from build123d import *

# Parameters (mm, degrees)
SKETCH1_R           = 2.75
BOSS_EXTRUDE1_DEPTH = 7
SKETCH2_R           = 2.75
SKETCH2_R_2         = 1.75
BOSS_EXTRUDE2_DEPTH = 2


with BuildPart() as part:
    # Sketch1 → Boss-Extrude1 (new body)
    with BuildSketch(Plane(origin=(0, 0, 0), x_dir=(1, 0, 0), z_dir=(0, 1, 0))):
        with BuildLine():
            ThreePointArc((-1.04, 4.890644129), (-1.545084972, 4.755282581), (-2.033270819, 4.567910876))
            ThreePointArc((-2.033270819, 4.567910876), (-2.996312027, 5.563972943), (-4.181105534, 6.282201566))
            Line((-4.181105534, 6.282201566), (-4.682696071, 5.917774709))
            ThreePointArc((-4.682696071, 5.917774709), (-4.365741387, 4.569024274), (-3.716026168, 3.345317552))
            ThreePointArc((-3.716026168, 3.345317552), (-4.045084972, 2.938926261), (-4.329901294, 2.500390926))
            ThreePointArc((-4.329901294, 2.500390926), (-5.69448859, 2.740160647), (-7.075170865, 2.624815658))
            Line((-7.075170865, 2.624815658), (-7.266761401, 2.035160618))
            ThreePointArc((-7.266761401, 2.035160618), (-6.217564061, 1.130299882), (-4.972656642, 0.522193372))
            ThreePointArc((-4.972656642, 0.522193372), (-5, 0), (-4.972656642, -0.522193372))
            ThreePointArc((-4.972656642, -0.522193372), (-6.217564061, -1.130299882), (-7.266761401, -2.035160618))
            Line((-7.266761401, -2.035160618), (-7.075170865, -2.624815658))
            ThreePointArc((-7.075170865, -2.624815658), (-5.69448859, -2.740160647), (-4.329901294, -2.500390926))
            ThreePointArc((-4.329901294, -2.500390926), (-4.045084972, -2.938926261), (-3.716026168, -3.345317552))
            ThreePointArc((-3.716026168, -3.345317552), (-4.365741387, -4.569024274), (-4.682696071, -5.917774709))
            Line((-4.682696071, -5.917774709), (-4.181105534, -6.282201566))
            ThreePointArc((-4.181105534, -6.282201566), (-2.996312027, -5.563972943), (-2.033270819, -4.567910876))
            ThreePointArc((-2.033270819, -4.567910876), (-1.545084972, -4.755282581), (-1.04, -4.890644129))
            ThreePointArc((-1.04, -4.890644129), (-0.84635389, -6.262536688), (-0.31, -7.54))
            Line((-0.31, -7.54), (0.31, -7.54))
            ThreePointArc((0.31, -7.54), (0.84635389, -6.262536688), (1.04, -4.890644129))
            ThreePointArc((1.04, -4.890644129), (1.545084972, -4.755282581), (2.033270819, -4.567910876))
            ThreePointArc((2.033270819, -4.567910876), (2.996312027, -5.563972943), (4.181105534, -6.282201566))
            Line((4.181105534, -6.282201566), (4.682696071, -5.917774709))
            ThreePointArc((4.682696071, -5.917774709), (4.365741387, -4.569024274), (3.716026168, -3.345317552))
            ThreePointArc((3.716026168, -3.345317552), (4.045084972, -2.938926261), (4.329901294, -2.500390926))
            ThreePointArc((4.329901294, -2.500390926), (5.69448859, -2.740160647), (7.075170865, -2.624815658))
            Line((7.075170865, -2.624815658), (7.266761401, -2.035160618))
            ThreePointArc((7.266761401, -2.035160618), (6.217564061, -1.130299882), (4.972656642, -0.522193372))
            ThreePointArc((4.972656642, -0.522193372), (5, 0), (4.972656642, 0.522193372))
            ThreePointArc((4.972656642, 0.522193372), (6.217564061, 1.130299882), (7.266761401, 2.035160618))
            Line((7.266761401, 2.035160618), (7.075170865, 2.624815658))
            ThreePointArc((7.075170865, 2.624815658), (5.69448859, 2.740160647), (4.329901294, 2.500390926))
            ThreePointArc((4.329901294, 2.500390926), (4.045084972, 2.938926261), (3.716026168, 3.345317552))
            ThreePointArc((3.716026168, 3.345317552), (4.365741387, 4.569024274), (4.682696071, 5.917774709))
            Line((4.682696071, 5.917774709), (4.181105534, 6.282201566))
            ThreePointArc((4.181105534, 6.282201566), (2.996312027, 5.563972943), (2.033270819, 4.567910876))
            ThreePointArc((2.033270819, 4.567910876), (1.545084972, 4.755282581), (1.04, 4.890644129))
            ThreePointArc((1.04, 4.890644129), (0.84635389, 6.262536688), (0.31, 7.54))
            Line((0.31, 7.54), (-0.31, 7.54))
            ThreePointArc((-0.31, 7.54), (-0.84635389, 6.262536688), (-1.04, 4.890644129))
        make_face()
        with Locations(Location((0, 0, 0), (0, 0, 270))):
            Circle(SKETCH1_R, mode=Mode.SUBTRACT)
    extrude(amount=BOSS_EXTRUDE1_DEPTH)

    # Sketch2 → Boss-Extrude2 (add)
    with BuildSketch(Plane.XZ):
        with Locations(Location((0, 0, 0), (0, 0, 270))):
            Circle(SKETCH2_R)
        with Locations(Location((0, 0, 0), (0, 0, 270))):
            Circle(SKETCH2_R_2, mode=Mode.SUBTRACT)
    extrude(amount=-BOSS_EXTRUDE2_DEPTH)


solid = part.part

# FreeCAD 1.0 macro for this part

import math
import FreeCAD as App
import Part
import Sketcher

V = App.Vector
Q = App.Units.Quantity

doc = App.newDocument("Part")
body = doc.addObject("PartDesign::Body", "Body")

sketch1 = doc.addObject("Sketcher::SketchObject", "Sketch")
body.addObject(sketch1)
sketch1.AttachmentSupport = (doc.XZ_Plane, [""])
sketch1.MapMode = "FlatFace"
sketch1.addGeometry(Part.ArcOfCircle(Part.Circle(V(0, 0, 0), V(0, 0, 1), 5), math.radians(-113.99), math.radians(-102.01)), False)
sketch1.addGeometry(Part.ArcOfCircle(Part.Circle(V(-6.4, -1.3, 0), V(0, 0, 1), 5.4), math.radians(-66), math.radians(-37)), False)
sketch1.addGeometry(Part.LineSegment(V(-4.2, -6.3, 0), V(-4.7, -5.9, 0)), False)
sketch1.addGeometry(Part.ArcOfCircle(Part.Circle(V(0.7, -6.5, 0), V(0, 0, 1), 5.4), math.radians(145), math.radians(174)), False)
sketch1.addGeometry(Part.ArcOfCircle(Part.Circle(V(0, 0, 0), V(0, 0, 1), 5), math.radians(-149.99), math.radians(-138.01)), False)
sketch1.addGeometry(Part.ArcOfCircle(Part.Circle(V(-5.9, 2.7, 0), V(0, 0, 1), 5.4), math.radians(-102), math.radians(-73)), False)
sketch1.addGeometry(Part.LineSegment(V(-7.1, -2.6, 0), V(-7.3, -2, 0)), False)
sketch1.addGeometry(Part.ArcOfCircle(Part.Circle(V(-3.2, -5.6, 0), V(0, 0, 1), 5.4), math.radians(109), math.radians(138)), False)
sketch1.addGeometry(Part.ArcOfCircle(Part.Circle(V(0, 0, 0), V(0, 0, 1), 5), math.radians(174.01), math.radians(185.99)), False)
sketch1.addGeometry(Part.ArcOfCircle(Part.Circle(V(-3.2, 5.6, 0), V(0, 0, 1), 5.4), math.radians(-138), math.radians(-109)), False)
sketch1.addGeometry(Part.LineSegment(V(-7.3, 2, 0), V(-7.1, 2.6, 0)), False)
sketch1.addGeometry(Part.ArcOfCircle(Part.Circle(V(-5.9, -2.7, 0), V(0, 0, 1), 5.4), math.radians(73), math.radians(102)), False)
sketch1.addGeometry(Part.ArcOfCircle(Part.Circle(V(0, 0, 0), V(0, 0, 1), 5), math.radians(138.01), math.radians(149.99)), False)
sketch1.addGeometry(Part.ArcOfCircle(Part.Circle(V(0.7, 6.5, 0), V(0, 0, 1), 5.4), math.radians(-174), math.radians(-145)), False)
sketch1.addGeometry(Part.LineSegment(V(-4.7, 5.9, 0), V(-4.2, 6.3, 0)), False)
sketch1.addGeometry(Part.ArcOfCircle(Part.Circle(V(-6.4, 1.3, 0), V(0, 0, 1), 5.4), math.radians(37), math.radians(66)), False)
sketch1.addGeometry(Part.ArcOfCircle(Part.Circle(V(0, 0, 0), V(0, 0, 1), 5), math.radians(102.01), math.radians(113.99)), False)
sketch1.addGeometry(Part.ArcOfCircle(Part.Circle(V(4.4, 4.8, 0), V(0, 0, 1), 5.4), math.radians(150), math.radians(179)), False)
sketch1.addGeometry(Part.LineSegment(V(-0.3, 7.5, 0), V(0.3, 7.5, 0)), False)
sketch1.addGeometry(Part.ArcOfCircle(Part.Circle(V(-4.4, 4.8, 0), V(0, 0, 1), 5.4), math.radians(1), math.radians(30)), False)
sketch1.addGeometry(Part.ArcOfCircle(Part.Circle(V(0, 0, 0), V(0, 0, 1), 5), math.radians(66.01), math.radians(77.99)), False)
sketch1.addGeometry(Part.ArcOfCircle(Part.Circle(V(6.4, 1.3, 0), V(0, 0, 1), 5.4), math.radians(114), math.radians(143)), False)
sketch1.addGeometry(Part.LineSegment(V(4.2, 6.3, 0), V(4.7, 5.9, 0)), False)
sketch1.addGeometry(Part.ArcOfCircle(Part.Circle(V(-0.7, 6.5, 0), V(0, 0, 1), 5.4), math.radians(-35), math.radians(-6)), False)
sketch1.addGeometry(Part.ArcOfCircle(Part.Circle(V(0, 0, 0), V(0, 0, 1), 5), math.radians(30.01), math.radians(41.99)), False)
sketch1.addGeometry(Part.ArcOfCircle(Part.Circle(V(5.9, -2.7, 0), V(0, 0, 1), 5.4), math.radians(78), math.radians(107)), False)
sketch1.addGeometry(Part.LineSegment(V(7.1, 2.6, 0), V(7.3, 2, 0)), False)
sketch1.addGeometry(Part.ArcOfCircle(Part.Circle(V(3.2, 5.6, 0), V(0, 0, 1), 5.4), math.radians(-71), math.radians(-42)), False)
sketch1.addGeometry(Part.ArcOfCircle(Part.Circle(V(0, 0, 0), V(0, 0, 1), 5), math.radians(-5.99), math.radians(5.99)), False)
sketch1.addGeometry(Part.ArcOfCircle(Part.Circle(V(3.2, -5.6, 0), V(0, 0, 1), 5.4), math.radians(42), math.radians(71)), False)
sketch1.addGeometry(Part.LineSegment(V(7.3, -2, 0), V(7.1, -2.6, 0)), False)
sketch1.addGeometry(Part.ArcOfCircle(Part.Circle(V(5.9, 2.7, 0), V(0, 0, 1), 5.4), math.radians(-107), math.radians(-78)), False)
sketch1.addGeometry(Part.ArcOfCircle(Part.Circle(V(0, 0, 0), V(0, 0, 1), 5), math.radians(-41.99), math.radians(-30.01)), False)
sketch1.addGeometry(Part.ArcOfCircle(Part.Circle(V(-0.7, -6.5, 0), V(0, 0, 1), 5.4), math.radians(6), math.radians(35)), False)
sketch1.addGeometry(Part.LineSegment(V(4.7, -5.9, 0), V(4.2, -6.3, 0)), False)
sketch1.addGeometry(Part.ArcOfCircle(Part.Circle(V(6.4, -1.3, 0), V(0, 0, 1), 5.4), math.radians(-143), math.radians(-114)), False)
sketch1.addGeometry(Part.ArcOfCircle(Part.Circle(V(0, 0, 0), V(0, 0, 1), 5), math.radians(-77.99), math.radians(-66.01)), False)
sketch1.addGeometry(Part.ArcOfCircle(Part.Circle(V(-4.4, -4.8, 0), V(0, 0, 1), 5.4), math.radians(-30), math.radians(-1)), False)
sketch1.addGeometry(Part.LineSegment(V(0.3, -7.5, 0), V(-0.3, -7.5, 0)), False)
sketch1.addGeometry(Part.ArcOfCircle(Part.Circle(V(4.4, -4.8, 0), V(0, 0, 1), 5.4), math.radians(-179), math.radians(-150)), False)
sketch1.addGeometry(Part.Circle(V(0, 0, 0), V(0, 0, 1), 2.8), False)
sketch1.addConstraint(Sketcher.Constraint("Coincident", 0, 1, 1, 2))
sketch1.addConstraint(Sketcher.Constraint("Coincident", 1, 1, 2, 1))
sketch1.addConstraint(Sketcher.Constraint("Coincident", 2, 2, 3, 2))
sketch1.addConstraint(Sketcher.Constraint("Coincident", 3, 1, 4, 2))
sketch1.addConstraint(Sketcher.Constraint("Coincident", 4, 1, 5, 2))
sketch1.addConstraint(Sketcher.Constraint("Coincident", 5, 1, 6, 1))
sketch1.addConstraint(Sketcher.Constraint("Coincident", 6, 2, 7, 2))
sketch1.addConstraint(Sketcher.Constraint("Coincident", 7, 1, 8, 2))
sketch1.addConstraint(Sketcher.Constraint("Coincident", 8, 1, 9, 2))
sketch1.addConstraint(Sketcher.Constraint("Coincident", 9, 1, 10, 1))
sketch1.addConstraint(Sketcher.Constraint("Coincident", 10, 2, 11, 2))
sketch1.addConstraint(Sketcher.Constraint("Coincident", 11, 1, 12, 2))
sketch1.addConstraint(Sketcher.Constraint("Coincident", 12, 1, 13, 2))
sketch1.addConstraint(Sketcher.Constraint("Coincident", 13, 1, 14, 1))
sketch1.addConstraint(Sketcher.Constraint("Coincident", 14, 2, 15, 2))
sketch1.addConstraint(Sketcher.Constraint("Coincident", 15, 1, 16, 2))
sketch1.addConstraint(Sketcher.Constraint("Coincident", 16, 1, 17, 2))
sketch1.addConstraint(Sketcher.Constraint("Coincident", 17, 1, 18, 1))
sketch1.addConstraint(Sketcher.Constraint("Coincident", 18, 2, 19, 2))
sketch1.addConstraint(Sketcher.Constraint("Coincident", 19, 1, 20, 2))
sketch1.addConstraint(Sketcher.Constraint("Coincident", 20, 1, 21, 2))
sketch1.addConstraint(Sketcher.Constraint("Coincident", 21, 1, 22, 1))
sketch1.addConstraint(Sketcher.Constraint("Coincident", 22, 2, 23, 2))
sketch1.addConstraint(Sketcher.Constraint("Coincident", 23, 1, 24, 2))
sketch1.addConstraint(Sketcher.Constraint("Coincident", 24, 1, 25, 2))
sketch1.addConstraint(Sketcher.Constraint("Coincident", 25, 1, 26, 1))
sketch1.addConstraint(Sketcher.Constraint("Coincident", 26, 2, 27, 2))
sketch1.addConstraint(Sketcher.Constraint("Coincident", 27, 1, 28, 2))
sketch1.addConstraint(Sketcher.Constraint("Coincident", 28, 1, 29, 2))
sketch1.addConstraint(Sketcher.Constraint("Coincident", 29, 1, 30, 1))
sketch1.addConstraint(Sketcher.Constraint("Coincident", 30, 2, 31, 2))
sketch1.addConstraint(Sketcher.Constraint("Coincident", 31, 1, 32, 2))
sketch1.addConstraint(Sketcher.Constraint("Coincident", 32, 1, 33, 2))
sketch1.addConstraint(Sketcher.Constraint("Coincident", 33, 1, 34, 1))
sketch1.addConstraint(Sketcher.Constraint("Coincident", 34, 2, 35, 2))
sketch1.addConstraint(Sketcher.Constraint("Coincident", 35, 1, 36, 2))
sketch1.addConstraint(Sketcher.Constraint("Coincident", 36, 1, 37, 2))
sketch1.addConstraint(Sketcher.Constraint("Coincident", 37, 1, 38, 1))
sketch1.addConstraint(Sketcher.Constraint("Coincident", 38, 2, 39, 2))
sketch1.addConstraint(Sketcher.Constraint("Coincident", 39, 1, 0, 2))
sketch1.addConstraint(Sketcher.Constraint("Horizontal", 18))
sketch1.addConstraint(Sketcher.Constraint("Horizontal", 38))
sketch1.addConstraint(Sketcher.Constraint("Coincident", 0, 3, -1, 1))
sketch1.addConstraint(Sketcher.Constraint("Coincident", 4, 3, -1, 1))
sketch1.addConstraint(Sketcher.Constraint("Coincident", 8, 3, -1, 1))
sketch1.addConstraint(Sketcher.Constraint("Coincident", 12, 3, -1, 1))
sketch1.addConstraint(Sketcher.Constraint("Coincident", 16, 3, -1, 1))
sketch1.addConstraint(Sketcher.Constraint("Coincident", 20, 3, -1, 1))
sketch1.addConstraint(Sketcher.Constraint("Coincident", 24, 3, -1, 1))
sketch1.addConstraint(Sketcher.Constraint("Coincident", 28, 3, -1, 1))
sketch1.addConstraint(Sketcher.Constraint("Coincident", 32, 3, -1, 1))
sketch1.addConstraint(Sketcher.Constraint("Coincident", 36, 3, -1, 1))
sketch1.addConstraint(Sketcher.Constraint("Coincident", 40, 3, -1, 1))
sketch1.addConstraint(Sketcher.Constraint("Equal", 1, 3))
sketch1.addConstraint(Sketcher.Constraint("Equal", 0, 4))
sketch1.addConstraint(Sketcher.Constraint("Equal", 3, 5))
sketch1.addConstraint(Sketcher.Constraint("Equal", 5, 7))
sketch1.addConstraint(Sketcher.Constraint("Equal", 4, 8))
sketch1.addConstraint(Sketcher.Constraint("Equal", 7, 9))
sketch1.addConstraint(Sketcher.Constraint("Equal", 9, 11))
sketch1.addConstraint(Sketcher.Constraint("Equal", 8, 12))
sketch1.addConstraint(Sketcher.Constraint("Equal", 11, 13))
sketch1.addConstraint(Sketcher.Constraint("Equal", 13, 15))
sketch1.addConstraint(Sketcher.Constraint("Equal", 12, 16))
sketch1.addConstraint(Sketcher.Constraint("Equal", 15, 17))
sketch1.addConstraint(Sketcher.Constraint("Equal", 17, 19))
sketch1.addConstraint(Sketcher.Constraint("Equal", 16, 20))
sketch1.addConstraint(Sketcher.Constraint("Equal", 19, 21))
sketch1.addConstraint(Sketcher.Constraint("Equal", 21, 23))
sketch1.addConstraint(Sketcher.Constraint("Equal", 20, 24))
sketch1.addConstraint(Sketcher.Constraint("Equal", 23, 25))
sketch1.addConstraint(Sketcher.Constraint("Equal", 25, 27))
sketch1.addConstraint(Sketcher.Constraint("Equal", 24, 28))
sketch1.addConstraint(Sketcher.Constraint("Equal", 27, 29))
sketch1.addConstraint(Sketcher.Constraint("Equal", 29, 31))
sketch1.addConstraint(Sketcher.Constraint("Equal", 28, 32))
sketch1.addConstraint(Sketcher.Constraint("Equal", 31, 33))
sketch1.addConstraint(Sketcher.Constraint("Equal", 33, 35))
sketch1.addConstraint(Sketcher.Constraint("Equal", 32, 36))
sketch1.addConstraint(Sketcher.Constraint("Equal", 35, 37))
sketch1.addConstraint(Sketcher.Constraint("Equal", 37, 39))
sketch1.addConstraint(Sketcher.Constraint("Symmetric", 1, 3, 21, 3, -1, 1))
sketch1.addConstraint(Sketcher.Constraint("Symmetric", 3, 3, 23, 3, -1, 1))
sketch1.addConstraint(Sketcher.Constraint("Symmetric", 5, 3, 25, 3, -1, 1))
sketch1.addConstraint(Sketcher.Constraint("Symmetric", 7, 3, 27, 3, -1, 1))
sketch1.addConstraint(Sketcher.Constraint("Symmetric", 9, 3, 29, 3, -1, 1))
sketch1.addConstraint(Sketcher.Constraint("Symmetric", 11, 3, 31, 3, -1, 1))
sketch1.addConstraint(Sketcher.Constraint("Symmetric", 13, 3, 33, 3, -1, 1))
sketch1.addConstraint(Sketcher.Constraint("Symmetric", 15, 3, 35, 3, -1, 1))
sketch1.addConstraint(Sketcher.Constraint("Symmetric", 17, 3, 37, 3, -1, 1))
sketch1.addConstraint(Sketcher.Constraint("Symmetric", 19, 3, 39, 3, -1, 1))
sketch1.addConstraint(Sketcher.Constraint("Symmetric", 17, 3, 19, 3, -2))
sketch1.addConstraint(Sketcher.Constraint("Symmetric", 15, 3, 21, 3, -2))
sketch1.addConstraint(Sketcher.Constraint("Symmetric", 13, 3, 23, 3, -2))
sketch1.addConstraint(Sketcher.Constraint("Symmetric", 11, 3, 25, 3, -2))
sketch1.addConstraint(Sketcher.Constraint("Symmetric", 9, 3, 27, 3, -2))
sketch1.addConstraint(Sketcher.Constraint("Parallel", 2, 22))
sketch1.addConstraint(Sketcher.Constraint("Parallel", 6, 26))
sketch1.addConstraint(Sketcher.Constraint("Parallel", 10, 30))
sketch1.addConstraint(Sketcher.Constraint("Parallel", 14, 34))
sketch1.addConstraint(Sketcher.Constraint("Horizontal", 14, 2, 21, 1))
sketch1.addConstraint(Sketcher.Constraint("Horizontal", 13, 1, 22, 2))
sketch1.addConstraint(Sketcher.Constraint("Horizontal", 10, 2, 25, 1))
sketch1.addConstraint(Sketcher.Constraint("Horizontal", 9, 1, 26, 2))
sketch1.addConstraint(Sketcher.Constraint("Horizontal", 6, 2, 29, 1))
sketch1.addConstraint(Sketcher.Constraint("Horizontal", 2, 2, 33, 1))
sketch1.addConstraint(Sketcher.Constraint("Vertical", 6, 2, 9, 1))
sketch1.addConstraint(Sketcher.Constraint("Vertical", 2, 2, 13, 1))
sketch1.addConstraint(Sketcher.Constraint("Vertical", 18, 2, 37, 1))
sketch1.addConstraint(Sketcher.Constraint("Equal", 2, 6))
sketch1.addConstraint(Sketcher.Constraint("Radius", 0, Q("5 mm")))
sketch1.addConstraint(Sketcher.Constraint("Diameter", 40, Q("5.5 mm")))
sketch1.addConstraint(Sketcher.Constraint("Radius", 1, Q("5.4 mm")))
sketch1.addConstraint(Sketcher.Constraint("Angle", 2, Q("144 deg")))
sketch1.addConstraint(Sketcher.Constraint("Angle", 6, Q("108 deg")))
sketch1.addConstraint(Sketcher.Constraint("DistanceX", 18, 1, 18, 2, Q("0.62 mm")))
sketch1.addConstraint(Sketcher.Constraint("Distance", 2, Q("0.62 mm")))
sketch1.addConstraint(Sketcher.Constraint("DistanceX", 16, 1, -1, 1, Q("1.04 mm")))
sketch1.addConstraint(Sketcher.Constraint("DistanceY", -1, 1, 17, 1, Q("7.54 mm")))
sketch1.addConstraint(Sketcher.Constraint("DistanceY", -1, 1, 5, 3, Q("2.654302 mm")))
sketch1.addConstraint(Sketcher.Constraint("DistanceY", 1, 1, -1, 1, Q("6.282202 mm")))
sketch1.addConstraint(Sketcher.Constraint("DistanceX", 4, 1, -1, 1, Q("4.329901 mm")))
sketch1.addConstraint(Sketcher.Constraint("DistanceY", 1, 3, -1, 1, Q("1.343472 mm")))
sketch1.addConstraint(Sketcher.Constraint("DistanceX", 7, 3, -1, 1, Q("3.244579 mm")))
sketch1.addConstraint(Sketcher.Constraint("DistanceY", 7, 3, -1, 1, Q("5.638222 mm")))
sketch1.addConstraint(Sketcher.Constraint("DistanceX", 0, 1, -1, 1, Q("2.033271 mm")))
sketch1.addConstraint(Sketcher.Constraint("DistanceX", -1, 1, 3, 3, Q("0.689144 mm")))
pad1 = doc.addObject("PartDesign::Pad", "Pad")
body.addObject(pad1)
pad1.Profile = sketch1
pad1.Length = 7
pad1.Reversed = True

sketch2 = doc.addObject("Sketcher::SketchObject", "Sketch001")
body.addObject(sketch2)
sketch2.AttachmentSupport = (doc.XZ_Plane, [""])
sketch2.MapMode = "FlatFace"
sketch2.addGeometry(Part.Circle(V(0, 0, 0), V(0, 0, 1), 2.8), False)
sketch2.addGeometry(Part.Circle(V(0, 0, 0), V(0, 0, 1), 1.8), False)
sketch2.addConstraint(Sketcher.Constraint("Coincident", 0, 3, -1, 1))
sketch2.addConstraint(Sketcher.Constraint("Coincident", 1, 3, -1, 1))
sketch2.addConstraint(Sketcher.Constraint("Diameter", 0, Q("5.5 mm")))
sketch2.addConstraint(Sketcher.Constraint("Diameter", 1, Q("3.5 mm")))
pad2 = doc.addObject("PartDesign::Pad", "Pad001")
body.addObject(pad2)
pad2.Profile = sketch2
pad2.Length = 2
pad2.Reversed = True

doc.recompute()
